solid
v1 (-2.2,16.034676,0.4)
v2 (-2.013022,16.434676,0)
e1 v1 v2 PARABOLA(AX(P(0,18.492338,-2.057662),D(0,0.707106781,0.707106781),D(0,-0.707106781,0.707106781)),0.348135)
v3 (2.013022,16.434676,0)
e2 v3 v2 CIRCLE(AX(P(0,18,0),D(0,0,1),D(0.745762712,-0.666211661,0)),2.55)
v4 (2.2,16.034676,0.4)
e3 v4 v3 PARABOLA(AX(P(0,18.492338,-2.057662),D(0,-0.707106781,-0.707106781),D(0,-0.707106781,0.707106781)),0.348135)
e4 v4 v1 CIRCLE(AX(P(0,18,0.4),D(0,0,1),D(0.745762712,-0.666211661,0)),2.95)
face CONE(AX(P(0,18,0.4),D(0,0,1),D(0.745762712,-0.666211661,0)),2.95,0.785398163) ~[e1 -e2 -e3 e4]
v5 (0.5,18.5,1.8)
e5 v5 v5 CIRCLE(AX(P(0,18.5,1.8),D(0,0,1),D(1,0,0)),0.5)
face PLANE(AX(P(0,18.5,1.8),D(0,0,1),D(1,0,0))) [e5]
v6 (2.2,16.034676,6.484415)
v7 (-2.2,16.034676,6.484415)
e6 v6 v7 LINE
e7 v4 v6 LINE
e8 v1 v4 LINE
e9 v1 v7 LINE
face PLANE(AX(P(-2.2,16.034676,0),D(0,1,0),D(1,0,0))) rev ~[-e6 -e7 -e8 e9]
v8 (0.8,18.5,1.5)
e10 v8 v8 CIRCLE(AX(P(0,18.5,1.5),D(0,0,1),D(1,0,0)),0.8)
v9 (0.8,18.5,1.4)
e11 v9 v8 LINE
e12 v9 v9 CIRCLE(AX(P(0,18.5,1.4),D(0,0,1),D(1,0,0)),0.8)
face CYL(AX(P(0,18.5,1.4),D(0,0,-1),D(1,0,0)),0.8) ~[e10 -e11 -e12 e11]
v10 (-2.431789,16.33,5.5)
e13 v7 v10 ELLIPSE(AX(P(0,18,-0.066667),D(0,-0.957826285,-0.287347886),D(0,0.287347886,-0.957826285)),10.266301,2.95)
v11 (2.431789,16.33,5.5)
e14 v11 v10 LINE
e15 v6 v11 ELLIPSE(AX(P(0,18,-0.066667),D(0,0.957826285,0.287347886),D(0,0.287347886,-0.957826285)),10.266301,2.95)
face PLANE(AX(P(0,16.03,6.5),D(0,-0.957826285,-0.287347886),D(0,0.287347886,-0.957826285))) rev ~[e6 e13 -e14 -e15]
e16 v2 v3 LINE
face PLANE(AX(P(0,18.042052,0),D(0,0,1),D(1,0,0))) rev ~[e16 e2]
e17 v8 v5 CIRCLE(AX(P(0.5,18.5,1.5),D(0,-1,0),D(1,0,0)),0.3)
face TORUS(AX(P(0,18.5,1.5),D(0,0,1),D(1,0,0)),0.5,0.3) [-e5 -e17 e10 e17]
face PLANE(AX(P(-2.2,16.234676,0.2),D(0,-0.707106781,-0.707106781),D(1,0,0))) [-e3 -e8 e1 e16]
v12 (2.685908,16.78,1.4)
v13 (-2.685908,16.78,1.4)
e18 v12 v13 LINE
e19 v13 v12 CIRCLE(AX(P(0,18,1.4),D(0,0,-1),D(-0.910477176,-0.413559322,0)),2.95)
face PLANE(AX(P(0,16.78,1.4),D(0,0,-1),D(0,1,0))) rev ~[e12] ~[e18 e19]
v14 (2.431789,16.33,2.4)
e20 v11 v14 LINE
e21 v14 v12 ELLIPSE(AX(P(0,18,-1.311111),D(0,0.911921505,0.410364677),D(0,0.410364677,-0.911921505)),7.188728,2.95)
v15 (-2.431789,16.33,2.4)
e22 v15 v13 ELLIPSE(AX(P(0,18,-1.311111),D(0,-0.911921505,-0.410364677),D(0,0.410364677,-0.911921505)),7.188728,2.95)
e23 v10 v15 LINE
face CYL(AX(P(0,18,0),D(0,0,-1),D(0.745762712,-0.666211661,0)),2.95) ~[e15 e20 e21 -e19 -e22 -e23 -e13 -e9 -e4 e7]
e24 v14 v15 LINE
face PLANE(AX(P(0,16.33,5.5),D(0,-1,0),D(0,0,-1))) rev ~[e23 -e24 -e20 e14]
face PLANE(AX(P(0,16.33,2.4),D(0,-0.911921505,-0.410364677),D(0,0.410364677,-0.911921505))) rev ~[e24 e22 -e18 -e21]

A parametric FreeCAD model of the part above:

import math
import FreeCAD as App
import Part
import Sketcher
from FreeCAD import Vector


def edges_at(feature, points):
    """Names of the edges that pass closest to the given points."""
    edges = feature.Shape.Edges
    near = lambda p: min(range(len(edges)), key=lambda i: edges[i].distToShape(Part.Vertex(*p))[0])
    return sorted({f"Edge{near(p) + 1}" for p in points})

doc = App.newDocument("Part")
params = doc.addObject("Spreadsheet::Sheet", "Params")
for row, (alias, value) in enumerate([
    ("sketch1_radius", "2.95 mm"),
    ("sketch1_width", "4.4 mm"),
    ("pad1_length", "6.5 mm"),
    ("sketch2_height", "3.1 mm"),
    ("sketch2_height2", "5.1 mm"),
    ("sketch2_width", "5.22 mm"),
    ("sketch2_width2", "5.97 mm"),
    ("sketch3_diameter", "1.6 mm"),
    ("pad2_length", "0.4 mm"),
    ("fillet_radius", "0.3 mm"),
    ("chamfer_size", "0.4 mm"),
], start=1):
    params.set(f"A{row}", alias)
    params.set(f"B{row}", "=" + value)
    params.setAlias(f"B{row}", alias)

body = doc.addObject("PartDesign::Body", "Body")

sketch1 = doc.addObject("Sketcher::SketchObject", "Sketch")
body.addObject(sketch1)
sketch1.AttachmentSupport = (doc.XY_Plane, [""])
sketch1.MapMode = "FlatFace"
sketch1.addGeometry(Part.ArcOfCircle(Part.Circle(Vector(0, 0, 0), Vector(0, 0, 1), 3), math.radians(-42), math.radians(222)), False)
sketch1.addGeometry(Part.LineSegment(Vector(-2.2, -2, 0), Vector(2.2, -2, 0)), False)
sketch1.addConstraint(Sketcher.Constraint("Coincident", 0, 1, 1, 2))
sketch1.addConstraint(Sketcher.Constraint("Coincident", 1, 1, 0, 2))
sketch1.addConstraint(Sketcher.Constraint("Horizontal", 1))
sketch1.addConstraint(Sketcher.Constraint("Coincident", 0, 3, -1, 1))
sketch1.addConstraint(Sketcher.Constraint("Radius", 0, 2.95))
sketch1.addConstraint(Sketcher.Constraint("DistanceX", 1, 1, 1, 2, 4.4))
sketch1.setExpression("Constraints[4]", "Params.sketch1_radius")
sketch1.setExpression("Constraints[5]", "Params.sketch1_width")
pad1 = doc.addObject("PartDesign::Pad", "Pad")
body.addObject(pad1)
pad1.Profile = sketch1
pad1.setExpression("Length", "Params.pad1_length")

sketch2 = doc.addObject("Sketcher::SketchObject", "Sketch001")
body.addObject(sketch2)
sketch2.AttachmentSupport = (doc.YZ_Plane, [""])
sketch2.MapMode = "FlatFace"
sketch2.addGeometry(Part.LineSegment(Vector(-2, 6.5, 0), Vector(-1.7, 5.5, 0)), False)
sketch2.addGeometry(Part.LineSegment(Vector(-1.7, 5.5, 0), Vector(-1.7, 2.4, 0)), False)
sketch2.addGeometry(Part.LineSegment(Vector(-1.7, 2.4, 0), Vector(-1.2, 1.4, 0)), False)
sketch2.addGeometry(Part.LineSegment(Vector(-1.2, 1.4, 0), Vector(4, 1.4, 0)), False)
sketch2.addGeometry(Part.LineSegment(Vector(4, 1.4, 0), Vector(4, 6.5, 0)), False)
sketch2.addGeometry(Part.LineSegment(Vector(4, 6.5, 0), Vector(-2, 6.5, 0)), False)
sketch2.addConstraint(Sketcher.Constraint("Coincident", 0, 2, 1, 1))
sketch2.addConstraint(Sketcher.Constraint("Coincident", 1, 2, 2, 1))
sketch2.addConstraint(Sketcher.Constraint("Coincident", 2, 2, 3, 1))
sketch2.addConstraint(Sketcher.Constraint("Coincident", 3, 2, 4, 1))
sketch2.addConstraint(Sketcher.Constraint("Coincident", 4, 2, 5, 1))
sketch2.addConstraint(Sketcher.Constraint("Coincident", 5, 2, 0, 1))
sketch2.addConstraint(Sketcher.Constraint("Vertical", 1))
sketch2.addConstraint(Sketcher.Constraint("Horizontal", 3))
sketch2.addConstraint(Sketcher.Constraint("Vertical", 4))
sketch2.addConstraint(Sketcher.Constraint("Horizontal", 5))
sketch2.addConstraint(Sketcher.Constraint("DistanceY", 1, 2, 1, 1, 3.1))
sketch2.addConstraint(Sketcher.Constraint("DistanceY", 4, 1, 4, 2, 5.1))
sketch2.addConstraint(Sketcher.Constraint("DistanceX", -1, 1, 3, 2, 4.0))
sketch2.addConstraint(Sketcher.Constraint("DistanceY", 2, 2, 1, 2, 1.0))
sketch2.addConstraint(Sketcher.Constraint("DistanceX", 3, 1, 3, 2, 5.22))
sketch2.addConstraint(Sketcher.Constraint("DistanceX", 5, 2, 5, 1, 5.97))
sketch2.addConstraint(Sketcher.Constraint("DistanceY", -1, 1, 0, 2, 5.5))
sketch2.addConstraint(Sketcher.Constraint("DistanceX", 5, 2, 0, 2, 0.3))
sketch2.setExpression("Constraints[10]", "Params.sketch2_height")
sketch2.setExpression("Constraints[11]", "Params.sketch2_height2")
sketch2.setExpression("Constraints[14]", "Params.sketch2_width")
sketch2.setExpression("Constraints[15]", "Params.sketch2_width2")
pocket1 = doc.addObject("PartDesign::Pocket", "Pocket")
body.addObject(pocket1)
pocket1.Profile = sketch2
pocket1.Type = "ThroughAll"
pocket1.Midplane = True

sketch3 = doc.addObject("Sketcher::SketchObject", "Sketch002")
body.addObject(sketch3)
sketch3.AttachmentSupport = (doc.XY_Plane, [""])
sketch3.MapMode = "FlatFace"
sketch3.AttachmentOffset = App.Placement(Vector(0, 0, 1.4), App.Rotation())
sketch3.addGeometry(Part.Circle(Vector(0, 0.5, 0), Vector(0, 0, 1), 0.8), False)
sketch3.addConstraint(Sketcher.Constraint("PointOnObject", 0, 3, -2))
sketch3.addConstraint(Sketcher.Constraint("Diameter", 0, 1.6))
sketch3.addConstraint(Sketcher.Constraint("DistanceY", -1, 1, 0, 3, 0.5))
sketch3.setExpression("Constraints[1]", "Params.sketch3_diameter")
pad2 = doc.addObject("PartDesign::Pad", "Pad001")
body.addObject(pad2)
pad2.Profile = sketch3
pad2.setExpression("Length", "Params.pad2_length")
doc.recompute()

fillet = doc.addObject("PartDesign::Fillet", "Fillet")
body.addObject(fillet)
fillet.Base = (pad2, edges_at(pad2, [(-0.8, 0.5, 1.8)]))
fillet.setExpression("Radius", "Params.fillet_radius")
doc.recompute()

chamfer = doc.addObject("PartDesign::Chamfer", "Chamfer")
body.addObject(chamfer)
chamfer.Base = (fillet, edges_at(fillet, [(0, 2.95, 0), (0, -1.965, 0)]))
chamfer.setExpression("Size", "Params.chamfer_size")
body2 = doc.addObject("PartDesign::Body", "Body001")
doc.recompute()

body.Placement = App.Placement(Vector(0, 18, 0), App.Rotation(Vector(0, 0, 1), 0))
boolean = doc.addObject("PartDesign::Boolean", "Boolean")
body2.addObject(boolean)
boolean.Type = "Fuse"
boolean.addObjects([body])

doc.recompute()
